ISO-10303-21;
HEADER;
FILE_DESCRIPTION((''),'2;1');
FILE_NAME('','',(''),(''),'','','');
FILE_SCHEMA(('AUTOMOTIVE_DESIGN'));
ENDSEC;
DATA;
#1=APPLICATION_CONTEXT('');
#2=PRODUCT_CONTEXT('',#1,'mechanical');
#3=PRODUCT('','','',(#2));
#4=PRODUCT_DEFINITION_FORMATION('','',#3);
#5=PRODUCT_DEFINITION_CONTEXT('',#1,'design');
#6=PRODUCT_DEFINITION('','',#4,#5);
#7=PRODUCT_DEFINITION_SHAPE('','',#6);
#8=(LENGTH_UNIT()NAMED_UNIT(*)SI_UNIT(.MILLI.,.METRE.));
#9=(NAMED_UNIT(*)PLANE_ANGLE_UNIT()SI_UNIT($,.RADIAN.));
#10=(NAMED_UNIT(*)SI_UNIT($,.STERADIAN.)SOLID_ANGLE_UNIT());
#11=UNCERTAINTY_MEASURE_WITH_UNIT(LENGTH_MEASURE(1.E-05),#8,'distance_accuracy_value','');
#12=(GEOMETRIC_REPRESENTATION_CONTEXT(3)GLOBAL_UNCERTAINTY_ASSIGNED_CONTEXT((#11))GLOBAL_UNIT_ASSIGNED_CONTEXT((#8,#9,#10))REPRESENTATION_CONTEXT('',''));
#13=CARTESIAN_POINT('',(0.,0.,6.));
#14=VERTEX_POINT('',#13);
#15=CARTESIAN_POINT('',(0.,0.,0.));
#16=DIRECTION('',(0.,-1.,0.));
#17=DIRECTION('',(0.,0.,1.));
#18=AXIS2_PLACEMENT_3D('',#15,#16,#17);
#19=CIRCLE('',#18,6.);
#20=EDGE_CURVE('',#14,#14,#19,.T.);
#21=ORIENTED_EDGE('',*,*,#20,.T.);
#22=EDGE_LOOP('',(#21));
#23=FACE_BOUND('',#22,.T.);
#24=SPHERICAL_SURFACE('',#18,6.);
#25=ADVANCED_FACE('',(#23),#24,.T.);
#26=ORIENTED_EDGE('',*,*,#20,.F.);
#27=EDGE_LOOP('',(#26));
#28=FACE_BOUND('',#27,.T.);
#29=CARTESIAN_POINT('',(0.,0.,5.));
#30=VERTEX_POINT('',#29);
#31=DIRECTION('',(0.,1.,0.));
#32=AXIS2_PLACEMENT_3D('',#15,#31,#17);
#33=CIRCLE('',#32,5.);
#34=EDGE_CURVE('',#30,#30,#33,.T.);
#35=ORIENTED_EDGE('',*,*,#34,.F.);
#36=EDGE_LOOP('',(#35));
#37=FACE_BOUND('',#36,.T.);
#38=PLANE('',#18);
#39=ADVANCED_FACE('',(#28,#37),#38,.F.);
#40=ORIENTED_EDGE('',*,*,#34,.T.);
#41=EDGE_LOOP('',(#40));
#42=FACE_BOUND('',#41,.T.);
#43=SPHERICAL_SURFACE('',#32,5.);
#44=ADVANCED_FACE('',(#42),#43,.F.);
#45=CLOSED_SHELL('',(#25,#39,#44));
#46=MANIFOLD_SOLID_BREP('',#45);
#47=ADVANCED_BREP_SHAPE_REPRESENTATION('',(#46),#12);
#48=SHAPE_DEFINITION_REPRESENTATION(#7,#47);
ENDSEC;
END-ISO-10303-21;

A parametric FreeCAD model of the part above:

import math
import FreeCAD as App
import Part
import Sketcher
Q = App.Units.Quantity

doc = App.newDocument("Part")
body = doc.addObject("PartDesign::Body", "Body")

sketch1 = body.newObject("Sketcher::SketchObject", "Sketch")
sketch1.AttachmentSupport = (doc.getObject("XZ_Plane"), [""])
sketch1.MapMode = "FlatFace"
sketch1.addGeometry(Part.LineSegment(App.Vector(0, -5, 0), App.Vector(0, -6, 0)), False)
sketch1.addGeometry(Part.ArcOfCircle(Part.Circle(App.Vector(0, 0, 0), App.Vector(0, 0, 1), 6), math.radians(90), math.radians(270)), False)
sketch1.addGeometry(Part.LineSegment(App.Vector(0, 6, 0), App.Vector(0, 5, 0)), False)
sketch1.addGeometry(Part.ArcOfCircle(Part.Circle(App.Vector(0, 0, 0), App.Vector(0, 0, 1), 5), math.radians(90), math.radians(270)), False)
sketch1.addConstraint(Sketcher.Constraint("Coincident", 0, 2, 1, 2))
sketch1.addConstraint(Sketcher.Constraint("Coincident", 1, 1, 2, 1))
sketch1.addConstraint(Sketcher.Constraint("Coincident", 2, 2, 3, 1))
sketch1.addConstraint(Sketcher.Constraint("Coincident", 3, 2, 0, 1))
sketch1.addConstraint(Sketcher.Constraint("Vertical", 0))
sketch1.addConstraint(Sketcher.Constraint("Vertical", 2))
sketch1.addConstraint(Sketcher.Constraint("Coincident", 1, 3, -1, 1))
sketch1.addConstraint(Sketcher.Constraint("Coincident", 3, 3, -1, 1))
sketch1.addConstraint(Sketcher.Constraint("PointOnObject", 0, 2, -2))
sketch1.addConstraint(Sketcher.Constraint("PointOnObject", 1, 1, -2))
sketch1.addConstraint(Sketcher.Constraint("Radius", 1, Q("6 mm")))
sketch1.addConstraint(Sketcher.Constraint("Radius", 3, Q("5 mm")))
revolution = body.newObject("PartDesign::Revolution", "Revolution")
revolution.Profile = sketch1
revolution.ReferenceAxis = (sketch1, ["V_Axis"])
revolution.Angle = 180

doc.recompute()
